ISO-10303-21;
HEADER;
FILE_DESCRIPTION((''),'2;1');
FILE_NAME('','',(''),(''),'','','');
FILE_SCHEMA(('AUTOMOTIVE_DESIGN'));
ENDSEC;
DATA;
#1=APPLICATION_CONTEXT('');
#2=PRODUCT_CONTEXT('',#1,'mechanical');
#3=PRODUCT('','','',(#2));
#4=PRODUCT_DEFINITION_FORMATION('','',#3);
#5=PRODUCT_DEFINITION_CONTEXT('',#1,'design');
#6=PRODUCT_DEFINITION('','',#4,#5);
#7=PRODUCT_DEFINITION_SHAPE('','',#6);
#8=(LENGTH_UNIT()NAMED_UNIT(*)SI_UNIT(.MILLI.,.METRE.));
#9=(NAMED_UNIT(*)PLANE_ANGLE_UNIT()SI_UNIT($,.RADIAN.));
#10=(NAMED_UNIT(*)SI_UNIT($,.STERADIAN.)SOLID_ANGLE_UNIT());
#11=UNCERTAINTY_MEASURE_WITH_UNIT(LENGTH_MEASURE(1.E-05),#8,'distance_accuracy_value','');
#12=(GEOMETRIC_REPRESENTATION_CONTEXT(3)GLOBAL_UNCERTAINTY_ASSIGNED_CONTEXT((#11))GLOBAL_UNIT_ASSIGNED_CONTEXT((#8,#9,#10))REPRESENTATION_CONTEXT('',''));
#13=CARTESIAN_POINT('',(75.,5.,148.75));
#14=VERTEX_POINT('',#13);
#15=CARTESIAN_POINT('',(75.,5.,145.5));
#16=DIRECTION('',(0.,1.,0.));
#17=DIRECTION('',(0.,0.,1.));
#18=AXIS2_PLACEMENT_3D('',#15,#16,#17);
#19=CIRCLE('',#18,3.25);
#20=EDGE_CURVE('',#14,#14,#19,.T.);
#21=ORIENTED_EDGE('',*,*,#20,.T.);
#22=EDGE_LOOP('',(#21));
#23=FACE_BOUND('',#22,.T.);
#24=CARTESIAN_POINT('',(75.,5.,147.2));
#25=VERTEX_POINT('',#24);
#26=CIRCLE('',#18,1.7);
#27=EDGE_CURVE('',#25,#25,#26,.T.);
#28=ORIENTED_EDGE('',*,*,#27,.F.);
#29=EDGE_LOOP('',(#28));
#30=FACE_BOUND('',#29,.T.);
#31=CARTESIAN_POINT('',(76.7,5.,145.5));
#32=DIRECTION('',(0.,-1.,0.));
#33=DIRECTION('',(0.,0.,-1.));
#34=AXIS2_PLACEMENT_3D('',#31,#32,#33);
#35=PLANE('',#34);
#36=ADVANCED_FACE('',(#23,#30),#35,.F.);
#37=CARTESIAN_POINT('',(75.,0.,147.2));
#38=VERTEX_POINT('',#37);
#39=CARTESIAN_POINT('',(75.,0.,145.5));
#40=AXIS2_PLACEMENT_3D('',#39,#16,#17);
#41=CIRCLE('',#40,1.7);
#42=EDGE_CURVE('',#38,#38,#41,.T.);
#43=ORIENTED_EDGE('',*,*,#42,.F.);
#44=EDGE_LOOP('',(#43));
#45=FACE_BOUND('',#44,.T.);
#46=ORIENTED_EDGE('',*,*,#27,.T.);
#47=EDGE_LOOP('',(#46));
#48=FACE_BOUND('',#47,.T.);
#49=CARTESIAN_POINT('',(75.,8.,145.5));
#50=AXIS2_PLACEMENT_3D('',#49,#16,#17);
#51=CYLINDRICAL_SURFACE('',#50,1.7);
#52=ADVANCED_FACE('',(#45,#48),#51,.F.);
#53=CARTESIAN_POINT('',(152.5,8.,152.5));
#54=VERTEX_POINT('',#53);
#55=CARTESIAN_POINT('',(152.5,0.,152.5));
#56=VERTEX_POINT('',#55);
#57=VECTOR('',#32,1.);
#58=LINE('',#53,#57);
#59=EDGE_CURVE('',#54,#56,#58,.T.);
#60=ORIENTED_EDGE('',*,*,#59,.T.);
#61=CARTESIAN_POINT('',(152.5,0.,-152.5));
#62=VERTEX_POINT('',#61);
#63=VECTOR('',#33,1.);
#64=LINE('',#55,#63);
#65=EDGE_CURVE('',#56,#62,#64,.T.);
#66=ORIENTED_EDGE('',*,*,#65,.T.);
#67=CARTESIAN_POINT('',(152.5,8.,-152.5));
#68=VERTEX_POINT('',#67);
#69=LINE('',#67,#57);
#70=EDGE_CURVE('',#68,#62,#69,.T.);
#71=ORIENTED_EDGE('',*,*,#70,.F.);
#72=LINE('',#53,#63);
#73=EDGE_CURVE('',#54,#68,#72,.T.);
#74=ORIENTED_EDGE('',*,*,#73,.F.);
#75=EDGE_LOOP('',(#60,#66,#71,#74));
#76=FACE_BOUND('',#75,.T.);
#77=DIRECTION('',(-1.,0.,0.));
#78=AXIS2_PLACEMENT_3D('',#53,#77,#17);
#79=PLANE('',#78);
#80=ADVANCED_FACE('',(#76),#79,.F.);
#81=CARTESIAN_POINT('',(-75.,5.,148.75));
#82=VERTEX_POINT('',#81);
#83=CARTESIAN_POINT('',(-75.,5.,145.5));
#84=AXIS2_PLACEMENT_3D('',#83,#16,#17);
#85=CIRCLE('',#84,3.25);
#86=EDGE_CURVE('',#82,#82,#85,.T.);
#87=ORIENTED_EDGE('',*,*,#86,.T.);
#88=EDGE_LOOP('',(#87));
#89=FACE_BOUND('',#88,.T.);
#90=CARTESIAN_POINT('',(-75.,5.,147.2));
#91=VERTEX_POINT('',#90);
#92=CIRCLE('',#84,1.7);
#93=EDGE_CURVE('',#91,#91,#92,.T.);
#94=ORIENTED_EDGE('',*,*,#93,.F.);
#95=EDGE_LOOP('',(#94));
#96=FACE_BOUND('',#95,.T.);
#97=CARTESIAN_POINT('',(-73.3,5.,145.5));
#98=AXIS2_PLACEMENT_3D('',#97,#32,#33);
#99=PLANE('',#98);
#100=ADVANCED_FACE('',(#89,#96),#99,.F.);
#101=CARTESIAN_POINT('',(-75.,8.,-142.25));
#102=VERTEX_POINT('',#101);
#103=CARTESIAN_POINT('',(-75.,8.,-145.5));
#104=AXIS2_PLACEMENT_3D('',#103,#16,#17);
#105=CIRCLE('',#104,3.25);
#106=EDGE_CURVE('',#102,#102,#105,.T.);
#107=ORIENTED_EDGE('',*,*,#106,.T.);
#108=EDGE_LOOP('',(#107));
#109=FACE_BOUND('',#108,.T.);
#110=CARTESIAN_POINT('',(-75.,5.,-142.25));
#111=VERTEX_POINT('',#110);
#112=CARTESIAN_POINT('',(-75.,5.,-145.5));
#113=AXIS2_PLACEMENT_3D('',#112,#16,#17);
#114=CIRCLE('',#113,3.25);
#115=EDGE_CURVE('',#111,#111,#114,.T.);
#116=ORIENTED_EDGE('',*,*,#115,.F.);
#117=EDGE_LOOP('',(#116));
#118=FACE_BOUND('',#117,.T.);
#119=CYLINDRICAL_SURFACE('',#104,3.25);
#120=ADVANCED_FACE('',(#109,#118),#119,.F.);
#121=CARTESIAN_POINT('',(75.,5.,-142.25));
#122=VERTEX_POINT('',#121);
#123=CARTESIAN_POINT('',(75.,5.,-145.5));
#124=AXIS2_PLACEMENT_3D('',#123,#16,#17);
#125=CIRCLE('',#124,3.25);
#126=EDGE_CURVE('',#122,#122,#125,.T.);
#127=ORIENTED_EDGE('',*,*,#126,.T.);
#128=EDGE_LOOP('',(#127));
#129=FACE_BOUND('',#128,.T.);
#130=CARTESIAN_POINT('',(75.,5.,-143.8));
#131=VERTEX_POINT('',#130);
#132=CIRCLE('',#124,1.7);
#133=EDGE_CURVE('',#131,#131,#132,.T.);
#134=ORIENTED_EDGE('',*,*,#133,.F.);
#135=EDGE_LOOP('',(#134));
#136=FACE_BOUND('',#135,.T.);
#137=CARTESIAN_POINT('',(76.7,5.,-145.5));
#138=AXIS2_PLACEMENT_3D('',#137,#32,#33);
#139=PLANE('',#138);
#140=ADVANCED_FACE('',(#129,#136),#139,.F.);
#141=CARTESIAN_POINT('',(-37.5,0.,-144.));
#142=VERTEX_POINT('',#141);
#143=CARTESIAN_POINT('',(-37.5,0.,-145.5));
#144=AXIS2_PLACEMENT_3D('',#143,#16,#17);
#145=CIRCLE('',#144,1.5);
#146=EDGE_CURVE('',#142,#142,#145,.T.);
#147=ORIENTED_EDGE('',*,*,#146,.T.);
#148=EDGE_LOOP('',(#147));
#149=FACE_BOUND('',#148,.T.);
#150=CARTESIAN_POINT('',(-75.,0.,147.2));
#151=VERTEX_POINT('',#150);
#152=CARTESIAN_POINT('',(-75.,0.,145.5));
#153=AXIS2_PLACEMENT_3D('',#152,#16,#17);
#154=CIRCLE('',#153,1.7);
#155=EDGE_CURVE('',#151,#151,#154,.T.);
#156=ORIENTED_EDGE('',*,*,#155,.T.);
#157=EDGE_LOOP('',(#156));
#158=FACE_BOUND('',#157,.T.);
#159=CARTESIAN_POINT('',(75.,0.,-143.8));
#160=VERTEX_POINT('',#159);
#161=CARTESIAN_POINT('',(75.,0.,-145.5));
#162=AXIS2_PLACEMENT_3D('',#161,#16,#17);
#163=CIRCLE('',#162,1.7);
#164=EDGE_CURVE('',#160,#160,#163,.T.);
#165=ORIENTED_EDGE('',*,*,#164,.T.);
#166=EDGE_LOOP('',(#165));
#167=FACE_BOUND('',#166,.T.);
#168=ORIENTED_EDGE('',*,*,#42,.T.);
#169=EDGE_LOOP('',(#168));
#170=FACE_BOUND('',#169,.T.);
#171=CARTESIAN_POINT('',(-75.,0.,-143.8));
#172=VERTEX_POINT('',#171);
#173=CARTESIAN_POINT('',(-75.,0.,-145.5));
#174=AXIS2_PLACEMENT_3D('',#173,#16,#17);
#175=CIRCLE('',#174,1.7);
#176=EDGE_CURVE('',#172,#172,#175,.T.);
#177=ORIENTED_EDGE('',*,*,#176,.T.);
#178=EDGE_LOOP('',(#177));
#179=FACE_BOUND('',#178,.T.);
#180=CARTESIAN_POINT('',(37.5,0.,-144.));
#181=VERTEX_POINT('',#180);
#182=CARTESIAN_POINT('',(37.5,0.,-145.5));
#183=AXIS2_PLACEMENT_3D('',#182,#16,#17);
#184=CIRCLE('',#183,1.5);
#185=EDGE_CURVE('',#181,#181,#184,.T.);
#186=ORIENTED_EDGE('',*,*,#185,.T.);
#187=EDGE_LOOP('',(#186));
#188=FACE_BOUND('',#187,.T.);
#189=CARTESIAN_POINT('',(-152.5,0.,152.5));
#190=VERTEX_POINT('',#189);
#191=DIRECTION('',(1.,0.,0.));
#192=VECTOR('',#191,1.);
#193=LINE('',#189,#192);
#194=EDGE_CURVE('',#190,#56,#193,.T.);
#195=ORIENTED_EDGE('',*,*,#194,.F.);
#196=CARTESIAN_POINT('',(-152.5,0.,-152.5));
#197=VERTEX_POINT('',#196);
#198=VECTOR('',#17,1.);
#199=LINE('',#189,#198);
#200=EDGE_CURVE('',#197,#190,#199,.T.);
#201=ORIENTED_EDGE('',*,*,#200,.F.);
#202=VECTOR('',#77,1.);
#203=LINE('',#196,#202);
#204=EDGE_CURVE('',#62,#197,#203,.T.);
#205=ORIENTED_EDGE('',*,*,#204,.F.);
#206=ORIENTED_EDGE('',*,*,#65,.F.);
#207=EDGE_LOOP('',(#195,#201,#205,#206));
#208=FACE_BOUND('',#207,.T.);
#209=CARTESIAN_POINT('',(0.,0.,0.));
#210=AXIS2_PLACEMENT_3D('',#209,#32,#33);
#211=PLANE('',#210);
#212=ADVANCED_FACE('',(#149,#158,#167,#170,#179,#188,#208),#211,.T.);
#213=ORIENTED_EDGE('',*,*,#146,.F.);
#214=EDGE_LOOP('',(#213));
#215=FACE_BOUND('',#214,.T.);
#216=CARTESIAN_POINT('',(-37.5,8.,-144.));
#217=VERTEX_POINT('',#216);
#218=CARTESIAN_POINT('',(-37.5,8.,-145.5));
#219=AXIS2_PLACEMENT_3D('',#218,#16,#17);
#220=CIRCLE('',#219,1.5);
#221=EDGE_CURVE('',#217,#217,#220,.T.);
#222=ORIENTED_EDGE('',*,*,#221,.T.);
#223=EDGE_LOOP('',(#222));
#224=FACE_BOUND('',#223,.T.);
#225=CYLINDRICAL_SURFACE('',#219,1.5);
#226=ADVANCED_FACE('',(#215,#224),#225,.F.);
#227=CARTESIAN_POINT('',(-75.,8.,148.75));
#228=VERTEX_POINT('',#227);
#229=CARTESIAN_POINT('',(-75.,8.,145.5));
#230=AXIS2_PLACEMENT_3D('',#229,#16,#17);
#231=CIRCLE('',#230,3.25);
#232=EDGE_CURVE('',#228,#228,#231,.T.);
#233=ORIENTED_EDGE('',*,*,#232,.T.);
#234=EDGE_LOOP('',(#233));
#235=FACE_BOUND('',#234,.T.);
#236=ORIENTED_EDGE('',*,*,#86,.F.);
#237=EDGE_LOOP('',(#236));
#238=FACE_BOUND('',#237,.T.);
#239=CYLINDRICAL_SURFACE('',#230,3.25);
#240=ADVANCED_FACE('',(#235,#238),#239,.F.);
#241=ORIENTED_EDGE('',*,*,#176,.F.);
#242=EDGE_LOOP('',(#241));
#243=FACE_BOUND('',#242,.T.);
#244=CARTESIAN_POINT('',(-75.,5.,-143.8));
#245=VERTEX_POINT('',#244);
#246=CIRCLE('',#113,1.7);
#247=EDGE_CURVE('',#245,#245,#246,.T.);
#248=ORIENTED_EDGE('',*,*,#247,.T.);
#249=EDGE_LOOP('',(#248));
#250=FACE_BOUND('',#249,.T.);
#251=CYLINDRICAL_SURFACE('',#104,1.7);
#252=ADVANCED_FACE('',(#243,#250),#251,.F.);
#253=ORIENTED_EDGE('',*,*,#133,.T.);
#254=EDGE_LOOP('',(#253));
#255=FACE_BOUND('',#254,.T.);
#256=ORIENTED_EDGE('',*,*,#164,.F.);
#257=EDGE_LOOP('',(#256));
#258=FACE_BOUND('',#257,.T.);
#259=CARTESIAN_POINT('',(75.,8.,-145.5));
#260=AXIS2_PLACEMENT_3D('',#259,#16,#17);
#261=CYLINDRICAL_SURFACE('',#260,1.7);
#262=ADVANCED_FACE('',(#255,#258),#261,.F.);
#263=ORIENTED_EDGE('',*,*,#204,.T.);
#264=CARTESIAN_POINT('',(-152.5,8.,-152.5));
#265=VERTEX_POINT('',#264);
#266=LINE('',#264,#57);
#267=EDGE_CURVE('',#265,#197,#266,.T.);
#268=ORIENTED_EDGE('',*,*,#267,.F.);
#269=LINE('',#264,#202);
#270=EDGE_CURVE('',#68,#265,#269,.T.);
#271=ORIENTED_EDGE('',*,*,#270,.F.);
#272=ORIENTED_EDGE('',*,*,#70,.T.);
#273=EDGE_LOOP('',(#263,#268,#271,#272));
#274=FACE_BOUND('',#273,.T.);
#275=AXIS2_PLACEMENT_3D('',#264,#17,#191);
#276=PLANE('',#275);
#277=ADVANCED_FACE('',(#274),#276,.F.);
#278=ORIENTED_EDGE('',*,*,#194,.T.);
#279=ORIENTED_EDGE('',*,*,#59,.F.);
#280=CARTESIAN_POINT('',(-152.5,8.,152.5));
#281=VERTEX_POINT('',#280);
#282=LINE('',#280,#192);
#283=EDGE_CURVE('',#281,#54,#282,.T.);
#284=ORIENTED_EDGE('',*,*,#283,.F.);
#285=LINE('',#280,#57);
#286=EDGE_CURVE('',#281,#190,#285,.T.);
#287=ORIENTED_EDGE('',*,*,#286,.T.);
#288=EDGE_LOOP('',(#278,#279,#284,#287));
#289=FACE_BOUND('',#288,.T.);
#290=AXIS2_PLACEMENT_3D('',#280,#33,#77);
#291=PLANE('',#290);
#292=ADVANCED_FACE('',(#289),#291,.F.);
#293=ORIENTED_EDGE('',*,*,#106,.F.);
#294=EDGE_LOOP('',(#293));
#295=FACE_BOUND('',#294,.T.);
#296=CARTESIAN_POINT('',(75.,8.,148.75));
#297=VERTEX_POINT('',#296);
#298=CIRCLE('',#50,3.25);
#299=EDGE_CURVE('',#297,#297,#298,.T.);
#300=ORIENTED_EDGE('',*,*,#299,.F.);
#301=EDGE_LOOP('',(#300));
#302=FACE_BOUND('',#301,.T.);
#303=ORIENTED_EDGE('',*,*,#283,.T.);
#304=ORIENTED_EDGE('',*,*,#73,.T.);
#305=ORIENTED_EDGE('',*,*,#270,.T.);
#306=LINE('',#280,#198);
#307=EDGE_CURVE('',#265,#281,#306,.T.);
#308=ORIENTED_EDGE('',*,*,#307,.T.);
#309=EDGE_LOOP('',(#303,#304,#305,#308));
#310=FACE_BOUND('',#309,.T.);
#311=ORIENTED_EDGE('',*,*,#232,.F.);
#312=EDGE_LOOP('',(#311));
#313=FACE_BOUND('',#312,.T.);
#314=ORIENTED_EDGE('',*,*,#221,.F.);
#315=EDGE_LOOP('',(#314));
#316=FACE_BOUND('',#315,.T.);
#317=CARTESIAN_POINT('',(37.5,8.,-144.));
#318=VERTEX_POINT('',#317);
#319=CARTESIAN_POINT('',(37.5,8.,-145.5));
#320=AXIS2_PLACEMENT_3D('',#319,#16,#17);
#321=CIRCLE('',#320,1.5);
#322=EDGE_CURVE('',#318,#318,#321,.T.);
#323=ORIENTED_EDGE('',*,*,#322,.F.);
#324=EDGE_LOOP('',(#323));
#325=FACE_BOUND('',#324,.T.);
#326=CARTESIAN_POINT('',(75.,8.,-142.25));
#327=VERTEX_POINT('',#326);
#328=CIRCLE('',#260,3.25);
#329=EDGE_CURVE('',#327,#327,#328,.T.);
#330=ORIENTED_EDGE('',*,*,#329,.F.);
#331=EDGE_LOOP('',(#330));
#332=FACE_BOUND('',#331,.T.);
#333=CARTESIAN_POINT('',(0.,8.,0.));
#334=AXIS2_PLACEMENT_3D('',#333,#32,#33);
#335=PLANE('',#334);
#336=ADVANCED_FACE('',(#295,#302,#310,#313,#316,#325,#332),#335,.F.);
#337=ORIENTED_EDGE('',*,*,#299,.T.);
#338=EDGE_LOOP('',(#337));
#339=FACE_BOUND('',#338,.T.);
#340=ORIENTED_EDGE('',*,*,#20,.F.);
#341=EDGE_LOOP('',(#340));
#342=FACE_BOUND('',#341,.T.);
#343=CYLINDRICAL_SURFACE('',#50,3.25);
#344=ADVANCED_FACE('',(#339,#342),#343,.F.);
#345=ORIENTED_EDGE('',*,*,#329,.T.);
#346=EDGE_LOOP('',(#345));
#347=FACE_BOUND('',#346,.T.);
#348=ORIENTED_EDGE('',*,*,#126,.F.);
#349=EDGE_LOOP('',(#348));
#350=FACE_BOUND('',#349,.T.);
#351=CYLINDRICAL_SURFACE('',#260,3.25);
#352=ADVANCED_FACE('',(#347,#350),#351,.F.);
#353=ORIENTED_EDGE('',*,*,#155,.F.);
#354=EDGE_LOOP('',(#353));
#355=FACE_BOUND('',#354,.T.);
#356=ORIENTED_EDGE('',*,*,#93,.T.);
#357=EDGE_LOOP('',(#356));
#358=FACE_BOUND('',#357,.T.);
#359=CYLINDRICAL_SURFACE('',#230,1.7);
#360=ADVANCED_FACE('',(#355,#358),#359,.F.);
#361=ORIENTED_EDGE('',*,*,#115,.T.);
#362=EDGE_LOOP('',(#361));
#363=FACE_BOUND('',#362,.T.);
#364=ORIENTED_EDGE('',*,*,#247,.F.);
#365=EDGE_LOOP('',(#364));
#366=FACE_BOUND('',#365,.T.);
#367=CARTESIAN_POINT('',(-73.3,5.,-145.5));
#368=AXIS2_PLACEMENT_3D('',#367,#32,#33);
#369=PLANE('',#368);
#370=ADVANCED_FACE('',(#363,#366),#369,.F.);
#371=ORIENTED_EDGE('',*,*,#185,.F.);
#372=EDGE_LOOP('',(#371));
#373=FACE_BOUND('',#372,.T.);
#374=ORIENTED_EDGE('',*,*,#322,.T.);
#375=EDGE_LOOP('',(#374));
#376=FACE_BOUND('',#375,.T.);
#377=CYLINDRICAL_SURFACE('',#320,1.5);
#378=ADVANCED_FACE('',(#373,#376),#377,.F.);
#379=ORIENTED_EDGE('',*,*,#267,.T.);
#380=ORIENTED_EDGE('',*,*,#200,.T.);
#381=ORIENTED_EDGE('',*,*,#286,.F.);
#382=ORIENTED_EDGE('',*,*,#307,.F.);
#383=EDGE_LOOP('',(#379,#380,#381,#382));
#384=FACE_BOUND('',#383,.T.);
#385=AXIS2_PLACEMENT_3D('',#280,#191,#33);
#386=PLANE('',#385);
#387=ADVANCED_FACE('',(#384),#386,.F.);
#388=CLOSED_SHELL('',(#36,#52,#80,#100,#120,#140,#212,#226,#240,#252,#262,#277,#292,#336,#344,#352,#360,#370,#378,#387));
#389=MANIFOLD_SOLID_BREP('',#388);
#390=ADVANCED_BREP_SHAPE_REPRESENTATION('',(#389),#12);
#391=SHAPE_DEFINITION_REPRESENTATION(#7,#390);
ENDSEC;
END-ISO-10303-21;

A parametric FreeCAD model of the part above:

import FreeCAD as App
import Part
import Sketcher
Q = App.Units.Quantity


def add_polygon(sketch, points):
    """Adds a closed chain of lines whose ends are joined by coincident constraints."""
    first, n = sketch.GeometryCount, len(points)
    for a, b in zip(points, points[1:] + points[:1]):
        sketch.addGeometry(Part.LineSegment(App.Vector(*a, 0), App.Vector(*b, 0)), False)
    for i in range(n):
        sketch.addConstraint(Sketcher.Constraint("Coincident", first + i, 2, first + (i + 1) % n, 1))

doc = App.newDocument("Part")
body = doc.addObject("PartDesign::Body", "Body")

# Sketch on XZ plane
sketch1 = body.newObject("Sketcher::SketchObject", "Sketch")
sketch1.AttachmentSupport = (doc.getObject("XZ_Plane"), [""])
sketch1.MapMode = "FlatFace"
add_polygon(sketch1, [(-152.5, -152.5), (-152.5, 152.5), (152.5, 152.5), (152.5, -152.5)])  # lines 0-3
sketch1.addConstraint(Sketcher.Constraint("Vertical", 0))
sketch1.addConstraint(Sketcher.Constraint("Horizontal", 1))
sketch1.addConstraint(Sketcher.Constraint("Vertical", 2))
sketch1.addConstraint(Sketcher.Constraint("Horizontal", 3))
sketch1.addConstraint(Sketcher.Constraint("Symmetric", 0, 2, 2, 2, -1, 1))
sketch1.addConstraint(Sketcher.Constraint("Equal", 3, 0))
sketch1.addConstraint(Sketcher.Constraint("DistanceX", 1, 1, 1, 2, Q("305 mm")))
pad1 = body.newObject("PartDesign::Pad", "Pad")
pad1.Profile = sketch1
pad1.Length = 8
pad1.Reversed = True

# Sketch on XZ plane
sketch2 = body.newObject("Sketcher::SketchObject", "Sketch001")
sketch2.AttachmentSupport = (doc.getObject("XZ_Plane"), [""])
sketch2.MapMode = "FlatFace"
sketch2.AttachmentOffset = App.Placement(App.Vector(0, 0, -8), App.Rotation())
sketch2.addGeometry(Part.Circle(App.Vector(-75, -145.5, 0), App.Vector(0, 0, 1), 1.7), False)
sketch2.addGeometry(Part.Circle(App.Vector(75, -145.5, 0), App.Vector(0, 0, 1), 1.7), False)
sketch2.addGeometry(Part.Circle(App.Vector(75, 145.5, 0), App.Vector(0, 0, 1), 1.7), False)
sketch2.addGeometry(Part.Circle(App.Vector(-75, 145.5, 0), App.Vector(0, 0, 1), 1.7), False)
sketch2.addConstraint(Sketcher.Constraint("Equal", 0, 1))
sketch2.addConstraint(Sketcher.Constraint("Equal", 1, 2))
sketch2.addConstraint(Sketcher.Constraint("Equal", 2, 3))
sketch2.addConstraint(Sketcher.Constraint("Symmetric", 0, 3, 2, 3, -1, 1))
sketch2.addConstraint(Sketcher.Constraint("Symmetric", 1, 3, 3, 3, -1, 1))
sketch2.addConstraint(Sketcher.Constraint("Symmetric", 0, 3, 1, 3, -2))
sketch2.addConstraint(Sketcher.Constraint("Diameter", 0, Q("3.4 mm")))
sketch2.addConstraint(Sketcher.Constraint("DistanceX", 0, 3, -1, 1, Q("75 mm")))
sketch2.addConstraint(Sketcher.Constraint("DistanceY", 1, 3, 2, 3, Q("291 mm")))
doc.recompute()
hole = body.newObject("PartDesign::Hole", "Hole")
hole.Profile = sketch2
hole.ThreadType = "None"
hole.Diameter = 3.4
hole.DepthType = "ThroughAll"
hole.HoleCutType = "Counterbore"
hole.HoleCutDiameter = 6.5
hole.HoleCutDepth = 3
hole.Reversed = True

# Sketch on XZ plane
sketch3 = body.newObject("Sketcher::SketchObject", "Sketch002")
sketch3.AttachmentSupport = (doc.getObject("XZ_Plane"), [""])
sketch3.MapMode = "FlatFace"
sketch3.AttachmentOffset = App.Placement(App.Vector(0, 0, -8), App.Rotation())
sketch3.addGeometry(Part.Circle(App.Vector(-37.5, -145.5, 0), App.Vector(0, 0, 1), 1.5), False)
sketch3.addGeometry(Part.Circle(App.Vector(37.5, -145.5, 0), App.Vector(0, 0, 1), 1.5), False)
sketch3.addConstraint(Sketcher.Constraint("Equal", 0, 1))
sketch3.addConstraint(Sketcher.Constraint("Symmetric", 0, 3, 1, 3, -2))
sketch3.addConstraint(Sketcher.Constraint("Diameter", 0, Q("3 mm")))
sketch3.addConstraint(Sketcher.Constraint("DistanceX", 0, 3, 1, 3, Q("75 mm")))
sketch3.addConstraint(Sketcher.Constraint("DistanceY", 0, 3, -1, 1, Q("145.5 mm")))
doc.recompute()
hole2 = body.newObject("PartDesign::Hole", "Hole001")
hole2.Profile = sketch3
hole2.ThreadType = "None"
hole2.Diameter = 3
hole2.DepthType = "ThroughAll"
hole2.Reversed = True

doc.recompute()
